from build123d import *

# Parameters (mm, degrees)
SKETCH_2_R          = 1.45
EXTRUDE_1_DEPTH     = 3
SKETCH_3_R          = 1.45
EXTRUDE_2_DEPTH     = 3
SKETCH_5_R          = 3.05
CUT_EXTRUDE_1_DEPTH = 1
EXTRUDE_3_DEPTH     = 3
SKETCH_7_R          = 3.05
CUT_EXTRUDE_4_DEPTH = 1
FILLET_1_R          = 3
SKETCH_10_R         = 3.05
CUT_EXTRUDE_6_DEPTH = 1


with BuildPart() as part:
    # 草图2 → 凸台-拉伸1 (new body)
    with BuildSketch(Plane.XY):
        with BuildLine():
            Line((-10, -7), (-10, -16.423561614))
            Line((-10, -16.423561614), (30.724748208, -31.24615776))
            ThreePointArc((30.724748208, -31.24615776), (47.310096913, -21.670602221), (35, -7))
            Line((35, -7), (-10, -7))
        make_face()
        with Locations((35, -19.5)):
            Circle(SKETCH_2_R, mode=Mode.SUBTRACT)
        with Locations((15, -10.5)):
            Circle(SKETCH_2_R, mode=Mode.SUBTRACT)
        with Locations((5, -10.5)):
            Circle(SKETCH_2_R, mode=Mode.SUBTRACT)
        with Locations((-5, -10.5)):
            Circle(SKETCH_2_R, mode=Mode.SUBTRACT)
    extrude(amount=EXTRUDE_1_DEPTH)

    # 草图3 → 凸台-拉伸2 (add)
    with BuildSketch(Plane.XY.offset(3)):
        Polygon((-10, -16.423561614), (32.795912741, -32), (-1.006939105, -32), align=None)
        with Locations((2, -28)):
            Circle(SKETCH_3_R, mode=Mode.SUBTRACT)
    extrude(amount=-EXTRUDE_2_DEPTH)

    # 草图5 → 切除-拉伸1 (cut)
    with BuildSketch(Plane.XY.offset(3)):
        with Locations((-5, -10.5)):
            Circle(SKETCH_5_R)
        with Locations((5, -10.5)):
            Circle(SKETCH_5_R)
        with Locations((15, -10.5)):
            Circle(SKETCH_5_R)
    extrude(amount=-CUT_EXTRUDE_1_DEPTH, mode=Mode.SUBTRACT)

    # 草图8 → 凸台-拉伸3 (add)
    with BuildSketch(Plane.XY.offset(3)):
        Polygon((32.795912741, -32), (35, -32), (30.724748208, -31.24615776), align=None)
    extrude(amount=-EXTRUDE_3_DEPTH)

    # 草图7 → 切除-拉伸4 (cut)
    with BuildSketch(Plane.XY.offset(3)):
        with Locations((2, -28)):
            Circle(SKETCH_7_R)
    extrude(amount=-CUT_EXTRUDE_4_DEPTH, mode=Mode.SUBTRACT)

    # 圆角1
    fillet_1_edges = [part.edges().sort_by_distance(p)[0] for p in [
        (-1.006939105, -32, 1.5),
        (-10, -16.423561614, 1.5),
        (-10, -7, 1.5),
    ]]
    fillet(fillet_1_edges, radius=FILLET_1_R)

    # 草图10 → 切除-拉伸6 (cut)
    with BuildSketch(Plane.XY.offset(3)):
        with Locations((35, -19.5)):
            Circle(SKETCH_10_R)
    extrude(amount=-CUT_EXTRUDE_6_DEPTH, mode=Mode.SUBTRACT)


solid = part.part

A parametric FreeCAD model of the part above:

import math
import FreeCAD as App
import Part
import Sketcher
from FreeCAD import Vector
Q = App.Units.Quantity


def edges_at(feature, points):
    """Names of the edges that pass closest to the given points."""
    edges = feature.Shape.Edges
    near = lambda p: min(range(len(edges)), key=lambda i: edges[i].distToShape(Part.Vertex(*p))[0])
    return sorted({f"Edge{near(p) + 1}" for p in points})

doc = App.newDocument("Part")
params = doc.addObject("Spreadsheet::Sheet", "Params")
for row, (alias, value) in enumerate([
    ("sketch1_diameter", "2.9 mm"),
    ("sketch1_radius", "12.5 mm"),
    ("sketch1_width", "45 mm"),
    ("pad1_length", "3 mm"),
    ("sketch2_diameter", "2.9 mm"),
    ("pad2_length", "3 mm"),
    ("sketch3_diameter", "6.1 mm"),
    ("pocket1_length", "1 mm"),
    ("pad3_length", "3 mm"),
    ("sketch5_diameter", "6.1 mm"),
    ("pocket2_length", "1 mm"),
    ("fillet_radius", "3 mm"),
    ("sketch6_diameter", "6.1 mm"),
    ("pocket3_length", "1 mm"),
], start=1):
    params.set(f"A{row}", alias)
    params.set(f"B{row}", "=" + value)
    params.setAlias(f"B{row}", alias)

body = doc.addObject("PartDesign::Body", "Body")

sketch1 = doc.addObject("Sketcher::SketchObject", "Sketch")
body.addObject(sketch1)
sketch1.AttachmentSupport = (doc.XY_Plane, [""])
sketch1.MapMode = "FlatFace"
sketch1.addGeometry(Part.LineSegment(Vector(-10, -7, 0), Vector(-10, -16.4, 0)), False)
sketch1.addGeometry(Part.LineSegment(Vector(-10, -16.4, 0), Vector(30.7, -31.2, 0)), False)
sketch1.addGeometry(Part.ArcOfCircle(Part.Circle(Vector(35, -19.5, 0), Vector(0, 0, 1), 12.5), math.radians(-110), math.radians(90)), False)
sketch1.addGeometry(Part.LineSegment(Vector(35, -7, 0), Vector(-10, -7, 0)), False)
sketch1.addGeometry(Part.Circle(Vector(35, -19.5, 0), Vector(0, 0, 1), 1.4), False)
sketch1.addGeometry(Part.Circle(Vector(-5, -10.5, 0), Vector(0, 0, 1), 1.4), False)
sketch1.addGeometry(Part.Circle(Vector(5, -10.5, 0), Vector(0, 0, 1), 1.4), False)
sketch1.addGeometry(Part.Circle(Vector(15, -10.5, 0), Vector(0, 0, 1), 1.4), False)
sketch1.addConstraint(Sketcher.Constraint("Coincident", 0, 2, 1, 1))
sketch1.addConstraint(Sketcher.Constraint("Tangent", 1, 2, 2, 1))
sketch1.addConstraint(Sketcher.Constraint("Tangent", 2, 2, 3, 1))
sketch1.addConstraint(Sketcher.Constraint("Coincident", 3, 2, 0, 1))
sketch1.addConstraint(Sketcher.Constraint("Vertical", 0))
sketch1.addConstraint(Sketcher.Constraint("Horizontal", 3))
sketch1.addConstraint(Sketcher.Constraint("Coincident", 4, 3, 2, 3))
sketch1.addConstraint(Sketcher.Constraint("Equal", 4, 5))
sketch1.addConstraint(Sketcher.Constraint("Equal", 5, 6))
sketch1.addConstraint(Sketcher.Constraint("Equal", 6, 7))
sketch1.addConstraint(Sketcher.Constraint("Symmetric", 5, 3, 6, 3, -2))
sketch1.addConstraint(Sketcher.Constraint("Horizontal", 6, 3, 7, 3))
sketch1.addConstraint(Sketcher.Constraint("Diameter", 4, 2.9))
sketch1.addConstraint(Sketcher.Constraint("Radius", 2, 12.5))
sketch1.addConstraint(Sketcher.Constraint("DistanceX", 3, 2, 3, 1, 45.0))
sketch1.addConstraint(Sketcher.Constraint("Angle", 1, Q("-20 deg")))
sketch1.addConstraint(Sketcher.Constraint("DistanceX", -1, 1, 2, 3, 35.0))
sketch1.addConstraint(Sketcher.Constraint("DistanceX", 5, 3, -1, 1, 5.0))
sketch1.addConstraint(Sketcher.Constraint("DistanceX", -1, 1, 7, 3, 15.0))
sketch1.addConstraint(Sketcher.Constraint("DistanceY", 2, 2, -1, 1, 7.0))
sketch1.addConstraint(Sketcher.Constraint("DistanceY", 2, 3, 5, 3, 9.0))
sketch1.setExpression("Constraints[12]", "Params.sketch1_diameter")
sketch1.setExpression("Constraints[13]", "Params.sketch1_radius")
sketch1.setExpression("Constraints[14]", "Params.sketch1_width")
pad1 = doc.addObject("PartDesign::Pad", "Pad")
body.addObject(pad1)
pad1.Profile = sketch1
pad1.setExpression("Length", "Params.pad1_length")

sketch2 = doc.addObject("Sketcher::SketchObject", "Sketch001")
body.addObject(sketch2)
sketch2.AttachmentSupport = (doc.XY_Plane, [""])
sketch2.MapMode = "FlatFace"
sketch2.AttachmentOffset = App.Placement(Vector(0, 0, 3), App.Rotation())
sketch2.addGeometry(Part.LineSegment(Vector(32.8, -32, 0), Vector(-10, -16.4, 0)), False)
sketch2.addGeometry(Part.LineSegment(Vector(-10, -16.4, 0), Vector(-1, -32, 0)), False)
sketch2.addGeometry(Part.LineSegment(Vector(-1, -32, 0), Vector(32.8, -32, 0)), False)
sketch2.addGeometry(Part.Circle(Vector(2, -28, 0), Vector(0, 0, 1), 1.4), False)
sketch2.addConstraint(Sketcher.Constraint("Coincident", 0, 2, 1, 1))
sketch2.addConstraint(Sketcher.Constraint("Coincident", 1, 2, 2, 1))
sketch2.addConstraint(Sketcher.Constraint("Coincident", 2, 2, 0, 1))
sketch2.addConstraint(Sketcher.Constraint("Horizontal", 2))
sketch2.addConstraint(Sketcher.Constraint("Diameter", 3, 2.9))
sketch2.addConstraint(Sketcher.Constraint("Angle", 0, Q("160 deg")))
sketch2.addConstraint(Sketcher.Constraint("Angle", 1, Q("-60 deg")))
sketch2.addConstraint(Sketcher.Constraint("DistanceX", -1, 1, 3, 3, 2.0))
sketch2.addConstraint(Sketcher.Constraint("DistanceY", 3, 3, -1, 1, 28.0))
sketch2.addConstraint(Sketcher.Constraint("DistanceX", 0, 2, -1, 1, 10.0))
sketch2.addConstraint(Sketcher.Constraint("DistanceY", 1, 2, -1, 1, 32.0))
sketch2.addConstraint(Sketcher.Constraint("DistanceX", 2, 1, 2, 2, 33.802852))
sketch2.setExpression("Constraints[4]", "Params.sketch2_diameter")
pad2 = doc.addObject("PartDesign::Pad", "Pad001")
body.addObject(pad2)
pad2.Profile = sketch2
pad2.setExpression("Length", "Params.pad2_length")
pad2.Reversed = True

sketch3 = doc.addObject("Sketcher::SketchObject", "Sketch002")
body.addObject(sketch3)
sketch3.AttachmentSupport = (doc.XY_Plane, [""])
sketch3.MapMode = "FlatFace"
sketch3.AttachmentOffset = App.Placement(Vector(0, 0, 3), App.Rotation())
sketch3.addGeometry(Part.Circle(Vector(-5, -10.5, 0), Vector(0, 0, 1), 3), False)
sketch3.addGeometry(Part.Circle(Vector(5, -10.5, 0), Vector(0, 0, 1), 3), False)
sketch3.addGeometry(Part.Circle(Vector(15, -10.5, 0), Vector(0, 0, 1), 3), False)
sketch3.addConstraint(Sketcher.Constraint("Equal", 0, 1))
sketch3.addConstraint(Sketcher.Constraint("Equal", 1, 2))
sketch3.addConstraint(Sketcher.Constraint("Symmetric", 0, 3, 1, 3, -2))
sketch3.addConstraint(Sketcher.Constraint("Horizontal", 1, 3, 2, 3))
sketch3.addConstraint(Sketcher.Constraint("Diameter", 0, 6.1))
sketch3.addConstraint(Sketcher.Constraint("DistanceX", 0, 3, -1, 1, 5.0))
sketch3.addConstraint(Sketcher.Constraint("DistanceX", -1, 1, 2, 3, 15.0))
sketch3.addConstraint(Sketcher.Constraint("DistanceY", 0, 3, -1, 1, 10.5))
sketch3.setExpression("Constraints[4]", "Params.sketch3_diameter")
pocket1 = doc.addObject("PartDesign::Pocket", "Pocket")
body.addObject(pocket1)
pocket1.Profile = sketch3
pocket1.setExpression("Length", "Params.pocket1_length")

sketch4 = doc.addObject("Sketcher::SketchObject", "Sketch003")
body.addObject(sketch4)
sketch4.AttachmentSupport = (doc.XY_Plane, [""])
sketch4.MapMode = "FlatFace"
sketch4.AttachmentOffset = App.Placement(Vector(0, 0, 3), App.Rotation())
sketch4.addGeometry(Part.LineSegment(Vector(32.8, -32, 0), Vector(35, -32, 0)), False)
sketch4.addGeometry(Part.LineSegment(Vector(35, -32, 0), Vector(30.7, -31.2, 0)), False)
sketch4.addGeometry(Part.LineSegment(Vector(30.7, -31.2, 0), Vector(32.8, -32, 0)), False)
sketch4.addConstraint(Sketcher.Constraint("Coincident", 0, 2, 1, 1))
sketch4.addConstraint(Sketcher.Constraint("Coincident", 1, 2, 2, 1))
sketch4.addConstraint(Sketcher.Constraint("Coincident", 2, 2, 0, 1))
sketch4.addConstraint(Sketcher.Constraint("Horizontal", 0))
sketch4.addConstraint(Sketcher.Constraint("Angle", 1, Q("170 deg")))
sketch4.addConstraint(Sketcher.Constraint("Angle", 2, Q("-20 deg")))
sketch4.addConstraint(Sketcher.Constraint("DistanceX", -1, 1, 0, 2, 35.0))
sketch4.addConstraint(Sketcher.Constraint("DistanceY", 0, 2, -1, 1, 32.0))
sketch4.addConstraint(Sketcher.Constraint("DistanceX", 0, 1, 0, 2, 2.204087))
pad3 = doc.addObject("PartDesign::Pad", "Pad002")
body.addObject(pad3)
pad3.Profile = sketch4
pad3.setExpression("Length", "Params.pad3_length")
pad3.Reversed = True

sketch5 = doc.addObject("Sketcher::SketchObject", "Sketch004")
body.addObject(sketch5)
sketch5.AttachmentSupport = (doc.XY_Plane, [""])
sketch5.MapMode = "FlatFace"
sketch5.AttachmentOffset = App.Placement(Vector(0, 0, 3), App.Rotation())
sketch5.addGeometry(Part.Circle(Vector(2, -28, 0), Vector(0, 0, 1), 3), False)
sketch5.addConstraint(Sketcher.Constraint("Diameter", 0, 6.1))
sketch5.addConstraint(Sketcher.Constraint("DistanceX", -1, 1, 0, 3, 2.0))
sketch5.addConstraint(Sketcher.Constraint("DistanceY", 0, 3, -1, 1, 28.0))
sketch5.setExpression("Constraints[0]", "Params.sketch5_diameter")
pocket2 = doc.addObject("PartDesign::Pocket", "Pocket001")
body.addObject(pocket2)
pocket2.Profile = sketch5
pocket2.setExpression("Length", "Params.pocket2_length")
doc.recompute()

fillet = doc.addObject("PartDesign::Fillet", "Fillet")
body.addObject(fillet)
fillet.Base = (pocket2, edges_at(pocket2, [(-1.007, -32, 1.5), (-10, -16.424, 1.5), (-10, -7, 1.5)]))
fillet.setExpression("Radius", "Params.fillet_radius")

sketch6 = doc.addObject("Sketcher::SketchObject", "Sketch005")
body.addObject(sketch6)
sketch6.AttachmentSupport = (doc.XY_Plane, [""])
sketch6.MapMode = "FlatFace"
sketch6.AttachmentOffset = App.Placement(Vector(0, 0, 3), App.Rotation())
sketch6.addGeometry(Part.Circle(Vector(35, -19.5, 0), Vector(0, 0, 1), 3), False)
sketch6.addConstraint(Sketcher.Constraint("Diameter", 0, 6.1))
sketch6.addConstraint(Sketcher.Constraint("DistanceX", -1, 1, 0, 3, 35.0))
sketch6.addConstraint(Sketcher.Constraint("DistanceY", 0, 3, -1, 1, 19.5))
sketch6.setExpression("Constraints[0]", "Params.sketch6_diameter")
pocket3 = doc.addObject("PartDesign::Pocket", "Pocket002")
body.addObject(pocket3)
pocket3.Profile = sketch6
pocket3.setExpression("Length", "Params.pocket3_length")

doc.recompute()
